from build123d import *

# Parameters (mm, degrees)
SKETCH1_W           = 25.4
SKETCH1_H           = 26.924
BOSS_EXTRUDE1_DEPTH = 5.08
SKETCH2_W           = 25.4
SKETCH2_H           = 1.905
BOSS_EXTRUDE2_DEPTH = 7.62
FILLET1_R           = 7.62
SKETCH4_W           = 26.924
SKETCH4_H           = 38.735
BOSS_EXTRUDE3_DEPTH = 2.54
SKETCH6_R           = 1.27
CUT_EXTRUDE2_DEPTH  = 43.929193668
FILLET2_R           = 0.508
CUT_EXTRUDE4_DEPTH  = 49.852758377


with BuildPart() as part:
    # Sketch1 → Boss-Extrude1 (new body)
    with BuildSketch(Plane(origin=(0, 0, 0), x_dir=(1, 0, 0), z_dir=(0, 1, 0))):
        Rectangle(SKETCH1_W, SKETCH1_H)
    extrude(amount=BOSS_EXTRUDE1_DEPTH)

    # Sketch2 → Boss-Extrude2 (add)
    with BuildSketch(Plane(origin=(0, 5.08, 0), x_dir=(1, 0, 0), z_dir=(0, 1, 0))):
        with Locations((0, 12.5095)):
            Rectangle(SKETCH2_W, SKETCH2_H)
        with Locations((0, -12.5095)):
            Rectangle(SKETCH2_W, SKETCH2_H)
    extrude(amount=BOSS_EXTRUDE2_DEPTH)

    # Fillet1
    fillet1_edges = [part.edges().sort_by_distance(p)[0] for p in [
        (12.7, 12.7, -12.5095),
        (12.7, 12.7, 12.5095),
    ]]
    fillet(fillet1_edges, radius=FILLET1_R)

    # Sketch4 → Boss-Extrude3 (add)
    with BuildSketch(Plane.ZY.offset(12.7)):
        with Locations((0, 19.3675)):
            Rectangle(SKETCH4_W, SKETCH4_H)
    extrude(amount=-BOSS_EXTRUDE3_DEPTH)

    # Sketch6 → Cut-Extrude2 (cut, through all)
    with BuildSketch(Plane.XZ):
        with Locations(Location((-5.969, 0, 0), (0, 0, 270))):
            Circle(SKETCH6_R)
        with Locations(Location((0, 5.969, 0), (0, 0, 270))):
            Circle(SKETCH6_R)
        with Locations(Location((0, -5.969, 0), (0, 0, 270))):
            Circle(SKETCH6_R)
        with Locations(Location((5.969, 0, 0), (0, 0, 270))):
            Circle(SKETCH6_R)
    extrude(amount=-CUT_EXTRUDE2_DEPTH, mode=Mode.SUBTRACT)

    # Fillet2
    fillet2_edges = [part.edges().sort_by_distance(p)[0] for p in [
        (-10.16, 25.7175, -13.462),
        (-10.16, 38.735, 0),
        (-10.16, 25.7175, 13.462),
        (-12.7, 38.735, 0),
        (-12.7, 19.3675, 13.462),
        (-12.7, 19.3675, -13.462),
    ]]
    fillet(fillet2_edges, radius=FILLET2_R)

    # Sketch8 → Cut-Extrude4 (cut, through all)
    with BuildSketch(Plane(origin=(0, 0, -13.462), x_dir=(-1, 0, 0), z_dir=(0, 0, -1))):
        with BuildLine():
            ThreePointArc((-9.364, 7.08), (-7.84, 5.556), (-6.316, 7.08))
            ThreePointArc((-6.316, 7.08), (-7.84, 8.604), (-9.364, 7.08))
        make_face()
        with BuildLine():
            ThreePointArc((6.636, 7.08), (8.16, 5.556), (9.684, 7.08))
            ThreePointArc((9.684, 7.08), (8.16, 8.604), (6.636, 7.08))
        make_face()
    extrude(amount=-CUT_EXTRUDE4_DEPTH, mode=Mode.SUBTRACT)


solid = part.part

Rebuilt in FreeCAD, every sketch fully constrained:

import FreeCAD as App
import Part
import Sketcher

V = App.Vector
Q = App.Units.Quantity


def edges_at(feature, points):
    """Names of the edges that pass closest to the given points."""
    edges = feature.Shape.Edges
    near = lambda p: min(range(len(edges)), key=lambda i: edges[i].distToShape(Part.Vertex(*p))[0])
    return sorted({f"Edge{near(p) + 1}" for p in points})


def add_polygon(sketch, points):
    """Adds a closed chain of lines whose ends are joined by coincident constraints."""
    first, n = sketch.GeometryCount, len(points)
    for a, b in zip(points, points[1:] + points[:1]):
        sketch.addGeometry(Part.LineSegment(App.Vector(*a, 0), App.Vector(*b, 0)), False)
    for i in range(n):
        sketch.addConstraint(Sketcher.Constraint("Coincident", first + i, 2, first + (i + 1) % n, 1))

doc = App.newDocument("Part")
params = doc.addObject("Spreadsheet::Sheet", "Params")
for row, (alias, value) in enumerate([
    ("sketch1_width", "1 in"),
    ("sketch1_height", "1.06 in"),
    ("pad1_length", "0.2 in"),
    ("sketch2_width", "1 in"),
    ("sketch2_height", "0.075 in"),
    ("pad2_length", "0.3 in"),
    ("fillet_radius", "0.3 in"),
    ("sketch3_height", "1.06 in"),
    ("sketch3_width", "1.525 in"),
    ("pad3_length", "0.1 in"),
    ("sketch4_diameter", "0.1 in"),
    ("fillet2_radius", "0.02 in"),
    ("sketch5_diameter", "0.12 in"),
], start=1):
    params.set(f"A{row}", alias)
    params.set(f"B{row}", "=" + value)
    params.setAlias(f"B{row}", alias)

body = doc.addObject("PartDesign::Body", "Body")

# Sketch on XZ plane
sketch1 = body.newObject("Sketcher::SketchObject", "Sketch")
sketch1.AttachmentSupport = (doc.getObject("XZ_Plane"), [""])
sketch1.MapMode = "FlatFace"
add_polygon(sketch1, [(-13, -13), (-13, 13), (13, 13), (13, -13)])  # lines 0-3
sketch1.addConstraint([
    Sketcher.Constraint("Vertical", 0),
    Sketcher.Constraint("Horizontal", 1),
    Sketcher.Constraint("Vertical", 2),
    Sketcher.Constraint("Horizontal", 3),
    Sketcher.Constraint("Symmetric", 0, 2, 2, 2, -1, 1),
    Sketcher.Constraint("DistanceX", 1, 1, 1, 2, Q("1 in")),
    Sketcher.Constraint("DistanceY", 0, 1, 0, 2, Q("1.06 in")),
])
sketch1.setExpression("Constraints[9]", "Params.sketch1_width")
sketch1.setExpression("Constraints[10]", "Params.sketch1_height")
pad1 = body.newObject("PartDesign::Pad", "Pad")
pad1.Profile = sketch1
pad1.setExpression("Length", "Params.pad1_length")
pad1.Reversed = True

# Sketch on XZ plane
sketch2 = body.newObject("Sketcher::SketchObject", "Sketch001")
sketch2.AttachmentSupport = (doc.getObject("XZ_Plane"), [""])
sketch2.MapMode = "FlatFace"
sketch2.AttachmentOffset = App.Placement(V(0, 0, -0.2 * 25.4), App.Rotation())
add_polygon(sketch2, [(-12.7, -13.5), (-12.7, -11.6), (12.7, -11.6), (12.7, -13.5)])  # lines 0-3
add_polygon(sketch2, [(-12.7, 11.6), (-12.7, 13.5), (12.7, 13.5), (12.7, 11.6)])  # lines 4-7
sketch2.addConstraint([
    Sketcher.Constraint("Vertical", 0),
    Sketcher.Constraint("Horizontal", 1),
    Sketcher.Constraint("Vertical", 2),
    Sketcher.Constraint("Horizontal", 3),
    Sketcher.Constraint("Vertical", 4),
    Sketcher.Constraint("Horizontal", 5),
    Sketcher.Constraint("Vertical", 6),
    Sketcher.Constraint("Horizontal", 7),
    Sketcher.Constraint("Symmetric", 2, 2, 4, 2, -1, 1),
    Sketcher.Constraint("Symmetric", 0, 2, 6, 2, -1, 1),
    Sketcher.Constraint("Vertical", 3, 2, 4, 2),
    Sketcher.Constraint("DistanceX", 1, 1, 1, 2, Q("1 in")),
    Sketcher.Constraint("DistanceY", 0, 1, 0, 2, Q("0.075 in")),
    Sketcher.Constraint("DistanceY", 2, 2, -1, 1, Q("0.53 in")),
])
sketch2.setExpression("Constraints[19]", "Params.sketch2_width")
sketch2.setExpression("Constraints[20]", "Params.sketch2_height")
pad2 = body.newObject("PartDesign::Pad", "Pad001")
pad2.Profile = sketch2
pad2.setExpression("Length", "Params.pad2_length")
pad2.Reversed = True
doc.recompute()

fillet = body.newObject("PartDesign::Fillet", "Fillet")
fillet.Base = (pad2, edges_at(pad2, [(12.7, 12.7, -12.509), (12.7, 12.7, 12.509)]))
fillet.setExpression("Radius", "Params.fillet_radius")

# Sketch on YZ plane
sketch3 = body.newObject("Sketcher::SketchObject", "Sketch002")
sketch3.AttachmentSupport = (doc.getObject("YZ_Plane"), [""])
sketch3.MapMode = "FlatFace"
sketch3.AttachmentOffset = App.Placement(V(0, 0, -0.5 * 25.4), App.Rotation())
add_polygon(sketch3, [(39, -13), (0, -13), (0, 13), (39, 13)])  # lines 0-3
sketch3.addConstraint([
    Sketcher.Constraint("Horizontal", 0),
    Sketcher.Constraint("Vertical", 1),
    Sketcher.Constraint("Horizontal", 2),
    Sketcher.Constraint("Vertical", 3),
    Sketcher.Constraint("Symmetric", 0, 2, 1, 2, -1, 1),
    Sketcher.Constraint("DistanceY", 1, 1, 1, 2, Q("1.06 in")),
    Sketcher.Constraint("DistanceX", 0, 2, 0, 1, Q("1.525 in")),
])
sketch3.setExpression("Constraints[9]", "Params.sketch3_height")
sketch3.setExpression("Constraints[10]", "Params.sketch3_width")
pad3 = body.newObject("PartDesign::Pad", "Pad002")
pad3.Profile = sketch3
pad3.setExpression("Length", "Params.pad3_length")

# Sketch on XZ plane
sketch4 = body.newObject("Sketcher::SketchObject", "Sketch003")
sketch4.AttachmentSupport = (doc.getObject("XZ_Plane"), [""])
sketch4.MapMode = "FlatFace"
sketch4.addGeometry([
    Part.Circle(V(-6, 0, 0), V(0, 0, 1), 1.3),
    Part.Circle(V(0, 6, 0), V(0, 0, 1), 1.3),
    Part.Circle(V(0, -6, 0), V(0, 0, 1), 1.3),
    Part.Circle(V(6, 0, 0), V(0, 0, 1), 1.3),
], False)
sketch4.addConstraint([
    Sketcher.Constraint("Equal", 0, 1),
    Sketcher.Constraint("Equal", 1, 2),
    Sketcher.Constraint("Equal", 2, 3),
    Sketcher.Constraint("Symmetric", 1, 3, 2, 3, -1, 1),
    Sketcher.Constraint("Symmetric", 0, 3, 3, 3, -1, 1),
    Sketcher.Constraint("PointOnObject", 0, 3, -1),
    Sketcher.Constraint("PointOnObject", 1, 3, -2),
    Sketcher.Constraint("Diameter", 0, Q("0.1 in")),
    Sketcher.Constraint("DistanceY", 2, 3, 1, 3, Q("0.47 in")),
    Sketcher.Constraint("DistanceX", 0, 3, 3, 3, Q("0.47 in")),
])
sketch4.setExpression("Constraints[7]", "Params.sketch4_diameter")
pocket1 = body.newObject("PartDesign::Pocket", "Pocket")
pocket1.Profile = sketch4
pocket1.Type = "ThroughAll"
doc.recompute()

fillet2 = body.newObject("PartDesign::Fillet", "Fillet001")
fillet2.Base = (pocket1, edges_at(pocket1, [
    (-10.16, 25.718, -13.462),
    (-10.16, 38.735, 0),
    (-10.16, 25.718, 13.462),
    (-12.7, 38.735, 0),
    (-12.7, 19.367, 13.462),
    (-12.7, 19.367, -13.462),
]))
fillet2.setExpression("Radius", "Params.fillet2_radius")

# Sketch on XY plane
sketch5 = body.newObject("Sketcher::SketchObject", "Sketch004")
sketch5.AttachmentSupport = (doc.getObject("XY_Plane"), [""])
sketch5.MapMode = "FlatFace"
sketch5.AttachmentOffset = App.Placement(V(0, 0, -0.53 * 25.4), App.Rotation())
sketch5.addGeometry([
    Part.Circle(V(7.8, 7.1, 0), V(0, 0, 1), 1.5),
    Part.Circle(V(-8.2, 7.1, 0), V(0, 0, 1), 1.5),
], False)
sketch5.addConstraint([
    Sketcher.Constraint("Equal", 0, 1),
    Sketcher.Constraint("Horizontal", 0, 3, 1, 3),
    Sketcher.Constraint("Diameter", 0, Q("0.12 in")),
    Sketcher.Constraint("DistanceX", -1, 1, 0, 3, 7.84),
    Sketcher.Constraint("DistanceY", -1, 1, 0, 3, 7.08),
    Sketcher.Constraint("DistanceX", 1, 3, -1, 1, 8.16),
])
sketch5.setExpression("Constraints[2]", "Params.sketch5_diameter")
pocket2 = body.newObject("PartDesign::Pocket", "Pocket001")
pocket2.Profile = sketch5
pocket2.Type = "ThroughAll"
pocket2.Reversed = True

doc.recompute()
